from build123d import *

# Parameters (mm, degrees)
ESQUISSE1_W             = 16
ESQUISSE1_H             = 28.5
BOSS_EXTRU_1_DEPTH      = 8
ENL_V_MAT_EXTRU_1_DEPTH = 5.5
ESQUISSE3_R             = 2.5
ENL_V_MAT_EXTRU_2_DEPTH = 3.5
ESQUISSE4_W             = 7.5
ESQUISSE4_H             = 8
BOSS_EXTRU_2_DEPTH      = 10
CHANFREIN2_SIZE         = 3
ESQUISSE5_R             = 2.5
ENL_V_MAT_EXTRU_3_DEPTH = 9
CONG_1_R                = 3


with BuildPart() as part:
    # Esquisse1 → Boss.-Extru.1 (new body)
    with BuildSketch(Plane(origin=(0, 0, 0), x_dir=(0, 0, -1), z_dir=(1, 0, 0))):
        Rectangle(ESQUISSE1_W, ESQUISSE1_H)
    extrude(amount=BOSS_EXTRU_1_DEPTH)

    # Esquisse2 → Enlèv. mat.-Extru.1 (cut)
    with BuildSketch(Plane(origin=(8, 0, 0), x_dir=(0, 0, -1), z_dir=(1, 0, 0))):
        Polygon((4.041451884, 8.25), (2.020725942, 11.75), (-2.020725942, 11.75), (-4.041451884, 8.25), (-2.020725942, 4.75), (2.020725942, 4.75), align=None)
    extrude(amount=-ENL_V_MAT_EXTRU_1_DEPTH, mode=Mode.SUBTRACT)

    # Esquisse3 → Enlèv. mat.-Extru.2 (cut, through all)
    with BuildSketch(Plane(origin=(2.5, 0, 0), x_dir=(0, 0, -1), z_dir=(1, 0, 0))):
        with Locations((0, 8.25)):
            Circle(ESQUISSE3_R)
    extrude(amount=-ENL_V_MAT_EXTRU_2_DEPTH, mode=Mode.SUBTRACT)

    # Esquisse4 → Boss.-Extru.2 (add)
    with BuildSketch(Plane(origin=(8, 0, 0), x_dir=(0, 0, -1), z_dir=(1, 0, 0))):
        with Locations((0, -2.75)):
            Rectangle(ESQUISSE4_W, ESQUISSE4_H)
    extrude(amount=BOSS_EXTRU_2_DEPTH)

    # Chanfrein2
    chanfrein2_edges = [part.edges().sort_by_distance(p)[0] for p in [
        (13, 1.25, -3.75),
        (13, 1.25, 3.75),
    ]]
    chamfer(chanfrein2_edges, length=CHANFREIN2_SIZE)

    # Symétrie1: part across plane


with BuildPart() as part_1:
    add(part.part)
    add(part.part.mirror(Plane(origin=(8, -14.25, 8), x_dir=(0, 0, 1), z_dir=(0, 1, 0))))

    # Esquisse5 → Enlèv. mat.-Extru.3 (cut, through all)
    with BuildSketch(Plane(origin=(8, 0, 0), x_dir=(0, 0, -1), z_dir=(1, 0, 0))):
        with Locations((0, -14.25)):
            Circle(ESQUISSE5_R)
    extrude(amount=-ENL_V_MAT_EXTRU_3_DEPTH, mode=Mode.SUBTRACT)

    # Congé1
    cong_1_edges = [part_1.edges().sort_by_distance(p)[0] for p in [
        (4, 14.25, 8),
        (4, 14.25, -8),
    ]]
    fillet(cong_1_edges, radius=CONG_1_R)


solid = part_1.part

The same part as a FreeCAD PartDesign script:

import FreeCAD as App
import Part
import Sketcher
from FreeCAD import Vector
Q = App.Units.Quantity


def edges_at(feature, points):
    """Names of the edges that pass closest to the given points."""
    edges = feature.Shape.Edges
    near = lambda p: min(range(len(edges)), key=lambda i: edges[i].distToShape(Part.Vertex(*p))[0])
    return sorted({f"Edge{near(p) + 1}" for p in points})

doc = App.newDocument("Part")
body = doc.addObject("PartDesign::Body", "Body")

sketch1 = body.newObject("Sketcher::SketchObject", "Sketch")
sketch1.AttachmentSupport = (doc.getObject("YZ_Plane"), [""])
sketch1.MapMode = "FlatFace"
sketch1.addGeometry([
    Part.LineSegment(Vector(14, 8, 0), Vector(-14, 8, 0)),
    Part.LineSegment(Vector(-14, 8, 0), Vector(-14, -8, 0)),
    Part.LineSegment(Vector(-14, -8, 0), Vector(14, -8, 0)),
    Part.LineSegment(Vector(14, -8, 0), Vector(14, 8, 0)),
], False)
sketch1.addConstraint([
    Sketcher.Constraint("Coincident", 0, 2, 1, 1),
    Sketcher.Constraint("Coincident", 1, 2, 2, 1),
    Sketcher.Constraint("Coincident", 2, 2, 3, 1),
    Sketcher.Constraint("Coincident", 3, 2, 0, 1),
    Sketcher.Constraint("Horizontal", 0),
    Sketcher.Constraint("Vertical", 1),
    Sketcher.Constraint("Horizontal", 2),
    Sketcher.Constraint("Vertical", 3),
    Sketcher.Constraint("Symmetric", 0, 2, 2, 2, -1, 1),
    Sketcher.Constraint("DistanceY", 1, 2, 1, 1, 16.0),
    Sketcher.Constraint("DistanceX", 0, 2, 0, 1, 28.5),
])
pad1 = body.newObject("PartDesign::Pad", "Pad")
pad1.Profile = sketch1
pad1.Length = 8

sketch2 = body.newObject("Sketcher::SketchObject", "Sketch001")
sketch2.AttachmentSupport = (doc.getObject("YZ_Plane"), [""])
sketch2.MapMode = "FlatFace"
sketch2.AttachmentOffset = App.Placement(Vector(0, 0, 8), App.Rotation())
sketch2.addGeometry([
    Part.LineSegment(Vector(8.2, -4, 0), Vector(11.8, -2, 0)),
    Part.LineSegment(Vector(11.8, -2, 0), Vector(11.8, 2, 0)),
    Part.LineSegment(Vector(11.8, 2, 0), Vector(8.2, 4, 0)),
    Part.LineSegment(Vector(8.2, 4, 0), Vector(4.8, 2, 0)),
    Part.LineSegment(Vector(4.8, 2, 0), Vector(4.8, -2, 0)),
    Part.LineSegment(Vector(4.8, -2, 0), Vector(8.2, -4, 0)),
], False)
sketch2.addConstraint([
    Sketcher.Constraint("Coincident", 0, 2, 1, 1),
    Sketcher.Constraint("Coincident", 1, 2, 2, 1),
    Sketcher.Constraint("Coincident", 2, 2, 3, 1),
    Sketcher.Constraint("Coincident", 3, 2, 4, 1),
    Sketcher.Constraint("Coincident", 4, 2, 5, 1),
    Sketcher.Constraint("Coincident", 5, 2, 0, 1),
    Sketcher.Constraint("Vertical", 1),
    Sketcher.Constraint("Vertical", 4),
    Sketcher.Constraint("Symmetric", 2, 2, 5, 2, -1),
    Sketcher.Constraint("Parallel", 0, 3),
    Sketcher.Constraint("Parallel", 2, 5),
    Sketcher.Constraint("Horizontal", 1, 2, 3, 2),
    Sketcher.Constraint("Horizontal", 0, 2, 4, 2),
    Sketcher.Constraint("Angle", 0, Q("30 deg")),
    Sketcher.Constraint("DistanceX", 3, 2, 1, 2, 7.0),
    Sketcher.Constraint("DistanceX", -1, 1, 0, 2, 11.75),
    Sketcher.Constraint("DistanceY", 1, 1, 1, 2, 4.041452),
])
pocket1 = body.newObject("PartDesign::Pocket", "Pocket")
pocket1.Profile = sketch2
pocket1.Length = 5.5

sketch3 = body.newObject("Sketcher::SketchObject", "Sketch002")
sketch3.AttachmentSupport = (doc.getObject("YZ_Plane"), [""])
sketch3.MapMode = "FlatFace"
sketch3.AttachmentOffset = App.Placement(Vector(0, 0, 2.5), App.Rotation())
sketch3.addGeometry(Part.Circle(Vector(8.2, 0, 0), Vector(0, 0, 1), 2.5), False)
sketch3.addConstraint([
    Sketcher.Constraint("PointOnObject", 0, 3, -1),
    Sketcher.Constraint("Diameter", 0, 5.0),
    Sketcher.Constraint("DistanceX", -1, 1, 0, 3, 8.25),
])
pocket2 = body.newObject("PartDesign::Pocket", "Pocket001")
pocket2.Profile = sketch3
pocket2.Type = "ThroughAll"

sketch4 = body.newObject("Sketcher::SketchObject", "Sketch003")
sketch4.AttachmentSupport = (doc.getObject("YZ_Plane"), [""])
sketch4.MapMode = "FlatFace"
sketch4.AttachmentOffset = App.Placement(Vector(0, 0, 8), App.Rotation())
sketch4.addGeometry([
    Part.LineSegment(Vector(1, 4, 0), Vector(-7, 4, 0)),
    Part.LineSegment(Vector(-7, 4, 0), Vector(-7, -4, 0)),
    Part.LineSegment(Vector(-7, -4, 0), Vector(1, -4, 0)),
    Part.LineSegment(Vector(1, -4, 0), Vector(1, 4, 0)),
], False)
sketch4.addConstraint([
    Sketcher.Constraint("Coincident", 0, 2, 1, 1),
    Sketcher.Constraint("Coincident", 1, 2, 2, 1),
    Sketcher.Constraint("Coincident", 2, 2, 3, 1),
    Sketcher.Constraint("Coincident", 3, 2, 0, 1),
    Sketcher.Constraint("Horizontal", 0),
    Sketcher.Constraint("Vertical", 1),
    Sketcher.Constraint("Horizontal", 2),
    Sketcher.Constraint("Vertical", 3),
    Sketcher.Constraint("DistanceX", 0, 2, 0, 1, 8.0),
    Sketcher.Constraint("DistanceY", 1, 2, 1, 1, 7.5),
    Sketcher.Constraint("DistanceX", 0, 2, -1, 1, 6.75),
    Sketcher.Constraint("DistanceY", -1, 1, 0, 2, 3.75),
])
pad2 = body.newObject("PartDesign::Pad", "Pad001")
pad2.Profile = sketch4
pad2.Length = 10
doc.recompute()

chamfer = body.newObject("PartDesign::Chamfer", "Chamfer")
chamfer.Base = (pad2, edges_at(pad2, [(13, 1.25, -3.75), (13, 1.25, 3.75)]))
chamfer.Size = 3
body2 = doc.addObject("PartDesign::Body", "Body001")
doc.recompute()

body2.BaseFeature = body
doc.recompute()

mirroring = doc.addObject("Part::Mirroring", "Mirroring")
mirroring.Source = body
mirroring.Base = Vector(8, -14.25, 8)
mirroring.Normal = Vector(0, 1, 0)
body3 = doc.addObject("PartDesign::Body", "Body002")
body3.BaseFeature = mirroring
boolean = body2.newObject("PartDesign::Boolean", "Boolean")
boolean.Type = "Fuse"
boolean.addObjects([body3])
doc.recompute()

sketch5 = body2.newObject("Sketcher::SketchObject", "Sketch004")
sketch5.AttachmentSupport = (doc.getObject("YZ_Plane001"), [""])
sketch5.MapMode = "FlatFace"
sketch5.AttachmentOffset = App.Placement(Vector(0, 0, 8), App.Rotation())
sketch5.addGeometry(Part.Circle(Vector(-14.2, 0, 0), Vector(0, 0, 1), 2.5), False)
sketch5.addConstraint([
    Sketcher.Constraint("PointOnObject", 0, 3, -1),
    Sketcher.Constraint("Diameter", 0, 5.0),
    Sketcher.Constraint("DistanceX", 0, 3, -1, 1, 14.25),
])
pocket3 = body2.newObject("PartDesign::Pocket", "Pocket002")
pocket3.Profile = sketch5
pocket3.Type = "ThroughAll"
doc.recompute()

fillet = body2.newObject("PartDesign::Fillet", "Fillet")
fillet.Base = (pocket3, edges_at(pocket3, [(4, 14.25, 8), (4, 14.25, -8)]))
fillet.Radius = 3
mirroring.Visibility = False

doc.recompute()
